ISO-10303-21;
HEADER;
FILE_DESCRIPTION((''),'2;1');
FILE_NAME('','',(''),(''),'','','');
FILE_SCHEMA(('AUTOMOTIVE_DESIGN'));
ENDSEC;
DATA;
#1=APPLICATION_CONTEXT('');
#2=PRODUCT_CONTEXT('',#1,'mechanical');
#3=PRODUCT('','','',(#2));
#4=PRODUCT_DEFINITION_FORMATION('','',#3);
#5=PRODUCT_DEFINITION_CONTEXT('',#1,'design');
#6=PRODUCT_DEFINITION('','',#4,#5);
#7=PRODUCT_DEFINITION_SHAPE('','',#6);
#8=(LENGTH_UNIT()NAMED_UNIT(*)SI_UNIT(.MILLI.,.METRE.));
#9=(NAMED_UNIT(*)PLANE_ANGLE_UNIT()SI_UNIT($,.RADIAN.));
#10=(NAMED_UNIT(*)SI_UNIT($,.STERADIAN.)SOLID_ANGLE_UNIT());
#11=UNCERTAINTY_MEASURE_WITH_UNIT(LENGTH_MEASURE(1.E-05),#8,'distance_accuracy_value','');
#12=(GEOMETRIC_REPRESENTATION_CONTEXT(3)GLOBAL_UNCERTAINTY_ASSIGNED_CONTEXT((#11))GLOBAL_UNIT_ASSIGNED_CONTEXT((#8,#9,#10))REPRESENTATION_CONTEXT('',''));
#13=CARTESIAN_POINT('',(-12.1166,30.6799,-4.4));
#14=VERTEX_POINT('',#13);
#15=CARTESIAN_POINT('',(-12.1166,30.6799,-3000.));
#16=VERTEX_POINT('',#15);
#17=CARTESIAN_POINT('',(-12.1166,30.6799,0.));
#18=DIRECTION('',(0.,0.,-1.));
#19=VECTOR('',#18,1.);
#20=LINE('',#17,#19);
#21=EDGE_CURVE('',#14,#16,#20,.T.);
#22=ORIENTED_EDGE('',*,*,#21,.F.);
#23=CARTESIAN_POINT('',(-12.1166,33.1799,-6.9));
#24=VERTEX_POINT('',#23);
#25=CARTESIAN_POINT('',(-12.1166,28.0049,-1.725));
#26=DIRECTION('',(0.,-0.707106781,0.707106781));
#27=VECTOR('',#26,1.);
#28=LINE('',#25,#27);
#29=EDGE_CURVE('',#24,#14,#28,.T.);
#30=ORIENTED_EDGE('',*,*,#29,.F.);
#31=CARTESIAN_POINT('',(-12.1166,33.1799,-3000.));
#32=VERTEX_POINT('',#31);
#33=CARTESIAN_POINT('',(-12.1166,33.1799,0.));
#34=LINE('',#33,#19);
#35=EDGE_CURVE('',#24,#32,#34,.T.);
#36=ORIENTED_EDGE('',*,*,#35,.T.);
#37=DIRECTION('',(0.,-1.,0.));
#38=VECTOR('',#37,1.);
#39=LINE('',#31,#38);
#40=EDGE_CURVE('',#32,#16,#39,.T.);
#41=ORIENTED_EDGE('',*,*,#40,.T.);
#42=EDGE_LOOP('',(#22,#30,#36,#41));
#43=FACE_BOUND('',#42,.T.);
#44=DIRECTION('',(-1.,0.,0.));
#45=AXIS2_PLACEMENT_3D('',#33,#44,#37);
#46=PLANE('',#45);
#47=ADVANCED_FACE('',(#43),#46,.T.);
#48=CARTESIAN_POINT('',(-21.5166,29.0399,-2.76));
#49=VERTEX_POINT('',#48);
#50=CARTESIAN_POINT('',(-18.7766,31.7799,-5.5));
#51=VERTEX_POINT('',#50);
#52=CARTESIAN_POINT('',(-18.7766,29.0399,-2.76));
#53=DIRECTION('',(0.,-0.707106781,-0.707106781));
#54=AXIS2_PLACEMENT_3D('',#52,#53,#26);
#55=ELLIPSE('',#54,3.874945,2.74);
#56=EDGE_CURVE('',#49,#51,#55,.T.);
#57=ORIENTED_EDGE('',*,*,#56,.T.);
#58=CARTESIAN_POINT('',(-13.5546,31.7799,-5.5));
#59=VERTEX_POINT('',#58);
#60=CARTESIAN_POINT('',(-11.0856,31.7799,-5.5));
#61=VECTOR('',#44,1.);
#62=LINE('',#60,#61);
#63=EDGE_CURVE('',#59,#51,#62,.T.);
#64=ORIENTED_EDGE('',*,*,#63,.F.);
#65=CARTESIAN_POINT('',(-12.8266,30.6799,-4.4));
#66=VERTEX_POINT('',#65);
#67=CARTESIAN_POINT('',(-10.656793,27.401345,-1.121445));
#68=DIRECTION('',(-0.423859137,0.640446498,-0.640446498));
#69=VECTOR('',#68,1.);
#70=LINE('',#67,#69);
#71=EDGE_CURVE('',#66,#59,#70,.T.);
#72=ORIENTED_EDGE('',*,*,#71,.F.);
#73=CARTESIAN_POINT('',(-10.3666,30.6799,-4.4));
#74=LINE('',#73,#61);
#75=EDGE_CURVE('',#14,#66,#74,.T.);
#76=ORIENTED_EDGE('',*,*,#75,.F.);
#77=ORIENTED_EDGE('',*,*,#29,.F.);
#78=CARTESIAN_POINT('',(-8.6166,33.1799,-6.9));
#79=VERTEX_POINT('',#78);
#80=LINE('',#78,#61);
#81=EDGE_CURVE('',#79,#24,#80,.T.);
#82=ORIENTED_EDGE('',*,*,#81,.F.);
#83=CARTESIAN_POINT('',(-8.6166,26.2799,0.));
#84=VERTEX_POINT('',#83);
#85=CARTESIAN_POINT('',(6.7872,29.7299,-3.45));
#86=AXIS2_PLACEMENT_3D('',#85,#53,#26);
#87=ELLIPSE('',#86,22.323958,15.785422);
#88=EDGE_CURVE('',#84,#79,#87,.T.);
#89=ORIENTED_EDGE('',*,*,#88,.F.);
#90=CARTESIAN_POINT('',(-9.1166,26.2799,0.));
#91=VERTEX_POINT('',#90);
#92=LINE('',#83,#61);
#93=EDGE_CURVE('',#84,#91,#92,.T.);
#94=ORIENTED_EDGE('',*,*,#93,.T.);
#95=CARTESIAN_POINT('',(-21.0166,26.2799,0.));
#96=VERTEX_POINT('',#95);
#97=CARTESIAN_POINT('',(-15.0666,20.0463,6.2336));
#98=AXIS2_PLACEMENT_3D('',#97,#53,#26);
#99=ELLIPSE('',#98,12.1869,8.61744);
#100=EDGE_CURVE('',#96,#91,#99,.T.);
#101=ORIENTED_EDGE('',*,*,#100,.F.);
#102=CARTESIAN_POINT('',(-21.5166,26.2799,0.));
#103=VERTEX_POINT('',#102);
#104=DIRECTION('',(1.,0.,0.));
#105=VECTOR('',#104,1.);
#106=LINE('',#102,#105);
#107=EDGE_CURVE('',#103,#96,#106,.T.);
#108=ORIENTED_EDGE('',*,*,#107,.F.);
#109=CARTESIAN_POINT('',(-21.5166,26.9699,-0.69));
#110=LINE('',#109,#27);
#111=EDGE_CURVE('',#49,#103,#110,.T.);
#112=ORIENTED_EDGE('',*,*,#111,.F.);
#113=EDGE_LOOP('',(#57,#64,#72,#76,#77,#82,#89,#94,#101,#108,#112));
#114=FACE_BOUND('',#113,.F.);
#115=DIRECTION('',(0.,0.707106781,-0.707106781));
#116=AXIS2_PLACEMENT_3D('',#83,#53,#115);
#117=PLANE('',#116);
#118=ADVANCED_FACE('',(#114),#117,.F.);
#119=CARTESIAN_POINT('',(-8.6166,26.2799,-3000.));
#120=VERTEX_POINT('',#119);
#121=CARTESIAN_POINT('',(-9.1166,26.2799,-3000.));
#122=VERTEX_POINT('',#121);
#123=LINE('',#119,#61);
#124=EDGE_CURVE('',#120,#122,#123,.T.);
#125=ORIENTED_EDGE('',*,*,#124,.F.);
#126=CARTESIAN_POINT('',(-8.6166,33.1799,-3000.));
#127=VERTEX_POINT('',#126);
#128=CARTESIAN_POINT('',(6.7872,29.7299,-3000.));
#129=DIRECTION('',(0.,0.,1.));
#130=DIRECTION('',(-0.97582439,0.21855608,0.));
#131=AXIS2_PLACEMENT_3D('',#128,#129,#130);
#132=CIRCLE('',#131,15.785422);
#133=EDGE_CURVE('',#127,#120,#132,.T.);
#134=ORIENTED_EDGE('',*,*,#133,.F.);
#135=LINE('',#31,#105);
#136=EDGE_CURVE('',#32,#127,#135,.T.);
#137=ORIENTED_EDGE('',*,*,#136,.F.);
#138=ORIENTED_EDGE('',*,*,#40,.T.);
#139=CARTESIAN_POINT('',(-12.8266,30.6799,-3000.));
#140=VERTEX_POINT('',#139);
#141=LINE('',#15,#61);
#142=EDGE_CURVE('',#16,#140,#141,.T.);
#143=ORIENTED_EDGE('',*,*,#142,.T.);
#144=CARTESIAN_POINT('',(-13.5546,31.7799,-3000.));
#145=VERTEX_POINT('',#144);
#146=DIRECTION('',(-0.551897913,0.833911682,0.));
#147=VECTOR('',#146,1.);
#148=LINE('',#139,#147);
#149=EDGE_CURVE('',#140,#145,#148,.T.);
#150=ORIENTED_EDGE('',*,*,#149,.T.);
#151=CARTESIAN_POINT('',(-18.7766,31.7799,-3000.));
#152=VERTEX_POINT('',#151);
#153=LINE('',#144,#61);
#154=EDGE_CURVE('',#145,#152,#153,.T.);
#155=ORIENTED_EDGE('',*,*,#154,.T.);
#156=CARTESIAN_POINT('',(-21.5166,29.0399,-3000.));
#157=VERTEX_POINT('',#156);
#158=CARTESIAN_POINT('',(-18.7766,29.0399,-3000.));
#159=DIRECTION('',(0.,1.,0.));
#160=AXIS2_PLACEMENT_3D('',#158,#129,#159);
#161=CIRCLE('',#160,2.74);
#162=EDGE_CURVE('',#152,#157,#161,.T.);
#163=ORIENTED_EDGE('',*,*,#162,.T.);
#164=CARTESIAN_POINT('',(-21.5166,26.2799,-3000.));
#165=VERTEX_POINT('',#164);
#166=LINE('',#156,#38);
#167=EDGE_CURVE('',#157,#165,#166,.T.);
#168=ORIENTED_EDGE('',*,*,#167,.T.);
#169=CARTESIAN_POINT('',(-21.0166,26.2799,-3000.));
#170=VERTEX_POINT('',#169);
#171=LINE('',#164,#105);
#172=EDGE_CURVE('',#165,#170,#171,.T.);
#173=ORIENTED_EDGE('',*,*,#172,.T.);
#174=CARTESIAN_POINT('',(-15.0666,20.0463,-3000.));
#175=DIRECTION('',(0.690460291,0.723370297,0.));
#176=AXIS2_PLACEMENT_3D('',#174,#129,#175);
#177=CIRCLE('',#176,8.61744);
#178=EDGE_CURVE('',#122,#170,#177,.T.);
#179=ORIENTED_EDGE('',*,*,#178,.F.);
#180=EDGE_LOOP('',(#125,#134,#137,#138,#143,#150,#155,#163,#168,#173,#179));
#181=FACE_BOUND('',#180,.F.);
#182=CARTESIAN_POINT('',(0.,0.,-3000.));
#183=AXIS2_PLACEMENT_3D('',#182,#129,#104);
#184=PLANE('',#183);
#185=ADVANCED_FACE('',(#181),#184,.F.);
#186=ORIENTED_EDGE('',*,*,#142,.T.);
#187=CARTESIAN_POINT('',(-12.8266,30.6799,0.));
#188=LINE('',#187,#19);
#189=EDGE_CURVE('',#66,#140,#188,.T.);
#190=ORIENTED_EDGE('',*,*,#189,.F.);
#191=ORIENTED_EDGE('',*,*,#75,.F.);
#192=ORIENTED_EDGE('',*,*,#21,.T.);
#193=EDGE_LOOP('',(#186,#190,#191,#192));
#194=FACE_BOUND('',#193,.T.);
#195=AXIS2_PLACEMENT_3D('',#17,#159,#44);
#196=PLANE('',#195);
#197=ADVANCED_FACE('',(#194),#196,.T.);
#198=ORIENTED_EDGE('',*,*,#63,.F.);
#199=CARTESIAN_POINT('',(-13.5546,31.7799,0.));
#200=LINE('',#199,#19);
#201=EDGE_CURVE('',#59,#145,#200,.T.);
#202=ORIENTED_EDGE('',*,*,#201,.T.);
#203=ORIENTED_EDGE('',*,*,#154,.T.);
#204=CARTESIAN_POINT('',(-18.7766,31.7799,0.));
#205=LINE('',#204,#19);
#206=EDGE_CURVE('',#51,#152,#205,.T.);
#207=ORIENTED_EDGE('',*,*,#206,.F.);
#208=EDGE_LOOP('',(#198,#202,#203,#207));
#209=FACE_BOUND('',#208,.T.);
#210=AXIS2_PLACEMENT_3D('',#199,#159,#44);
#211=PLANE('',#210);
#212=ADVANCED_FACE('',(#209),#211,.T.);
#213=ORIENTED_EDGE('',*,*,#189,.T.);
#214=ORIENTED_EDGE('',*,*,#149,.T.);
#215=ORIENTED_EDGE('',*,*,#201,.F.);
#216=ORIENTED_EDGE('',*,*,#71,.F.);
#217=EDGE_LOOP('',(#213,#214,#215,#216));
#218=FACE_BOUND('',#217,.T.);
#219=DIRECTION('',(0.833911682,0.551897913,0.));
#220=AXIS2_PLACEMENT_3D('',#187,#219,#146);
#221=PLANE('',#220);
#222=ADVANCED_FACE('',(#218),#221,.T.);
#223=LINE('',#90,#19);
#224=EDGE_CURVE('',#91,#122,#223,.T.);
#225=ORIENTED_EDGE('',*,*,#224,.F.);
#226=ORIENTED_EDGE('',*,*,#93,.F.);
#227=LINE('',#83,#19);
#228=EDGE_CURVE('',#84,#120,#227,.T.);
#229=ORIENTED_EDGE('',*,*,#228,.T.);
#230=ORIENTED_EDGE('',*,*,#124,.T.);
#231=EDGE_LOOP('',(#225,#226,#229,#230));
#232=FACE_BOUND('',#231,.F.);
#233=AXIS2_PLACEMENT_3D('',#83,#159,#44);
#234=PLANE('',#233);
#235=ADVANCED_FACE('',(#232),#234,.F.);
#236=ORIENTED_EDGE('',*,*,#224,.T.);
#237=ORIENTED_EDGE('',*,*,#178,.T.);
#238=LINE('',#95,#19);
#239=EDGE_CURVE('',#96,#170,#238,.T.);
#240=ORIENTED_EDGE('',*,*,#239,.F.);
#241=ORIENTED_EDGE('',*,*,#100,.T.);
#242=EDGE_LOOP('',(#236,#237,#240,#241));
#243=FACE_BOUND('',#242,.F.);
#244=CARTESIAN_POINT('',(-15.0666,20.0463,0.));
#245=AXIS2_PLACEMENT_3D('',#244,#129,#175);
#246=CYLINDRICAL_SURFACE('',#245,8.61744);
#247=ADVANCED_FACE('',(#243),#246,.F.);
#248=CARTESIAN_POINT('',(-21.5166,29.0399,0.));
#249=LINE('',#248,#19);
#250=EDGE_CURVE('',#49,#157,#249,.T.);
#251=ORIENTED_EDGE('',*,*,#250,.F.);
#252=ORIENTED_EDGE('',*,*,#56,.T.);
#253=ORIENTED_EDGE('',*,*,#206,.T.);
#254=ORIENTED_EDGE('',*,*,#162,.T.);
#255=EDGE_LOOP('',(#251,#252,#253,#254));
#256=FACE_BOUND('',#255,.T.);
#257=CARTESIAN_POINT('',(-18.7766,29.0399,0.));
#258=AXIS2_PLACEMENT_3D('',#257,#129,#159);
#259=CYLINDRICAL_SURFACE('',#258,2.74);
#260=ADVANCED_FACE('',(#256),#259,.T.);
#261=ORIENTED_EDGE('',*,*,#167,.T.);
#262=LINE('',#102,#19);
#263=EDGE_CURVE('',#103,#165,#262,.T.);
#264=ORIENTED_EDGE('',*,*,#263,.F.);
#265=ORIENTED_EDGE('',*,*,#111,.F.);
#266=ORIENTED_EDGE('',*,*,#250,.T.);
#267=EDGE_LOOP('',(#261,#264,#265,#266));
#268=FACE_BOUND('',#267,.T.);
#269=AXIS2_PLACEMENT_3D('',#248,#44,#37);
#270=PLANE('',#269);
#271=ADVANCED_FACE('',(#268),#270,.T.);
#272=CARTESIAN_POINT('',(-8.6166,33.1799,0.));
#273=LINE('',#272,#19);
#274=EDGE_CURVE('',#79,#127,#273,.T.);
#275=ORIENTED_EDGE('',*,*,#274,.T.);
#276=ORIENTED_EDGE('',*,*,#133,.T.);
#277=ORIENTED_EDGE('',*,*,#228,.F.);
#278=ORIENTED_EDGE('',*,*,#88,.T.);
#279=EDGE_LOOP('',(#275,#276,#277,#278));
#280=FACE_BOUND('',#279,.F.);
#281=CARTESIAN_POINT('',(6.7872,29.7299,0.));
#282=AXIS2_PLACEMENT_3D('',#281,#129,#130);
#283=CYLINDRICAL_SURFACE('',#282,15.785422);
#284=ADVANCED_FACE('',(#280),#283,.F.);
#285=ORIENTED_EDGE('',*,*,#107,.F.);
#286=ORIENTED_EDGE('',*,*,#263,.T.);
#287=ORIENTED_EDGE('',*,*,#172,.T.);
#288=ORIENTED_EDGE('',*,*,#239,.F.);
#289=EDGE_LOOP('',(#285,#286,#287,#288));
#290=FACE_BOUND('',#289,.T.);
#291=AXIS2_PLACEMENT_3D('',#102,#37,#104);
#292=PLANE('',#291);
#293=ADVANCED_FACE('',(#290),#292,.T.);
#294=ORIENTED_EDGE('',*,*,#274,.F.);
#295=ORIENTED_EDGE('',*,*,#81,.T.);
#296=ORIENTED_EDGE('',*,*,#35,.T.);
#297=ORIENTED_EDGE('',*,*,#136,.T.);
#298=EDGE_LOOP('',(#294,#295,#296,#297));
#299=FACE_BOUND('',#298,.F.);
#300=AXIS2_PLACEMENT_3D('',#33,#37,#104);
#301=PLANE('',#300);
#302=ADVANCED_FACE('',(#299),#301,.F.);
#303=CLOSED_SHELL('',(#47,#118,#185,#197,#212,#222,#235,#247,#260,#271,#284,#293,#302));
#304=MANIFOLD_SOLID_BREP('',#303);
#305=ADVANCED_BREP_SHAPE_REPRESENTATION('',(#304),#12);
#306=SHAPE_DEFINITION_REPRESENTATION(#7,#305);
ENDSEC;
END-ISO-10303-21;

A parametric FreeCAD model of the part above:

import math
import FreeCAD as App
import Part
import Sketcher

V = App.Vector
Q = App.Units.Quantity

doc = App.newDocument("Part")
body = doc.addObject("PartDesign::Body", "Body")

# Sketch on XY plane
sketch1 = body.newObject("Sketcher::SketchObject", "Sketch")
sketch1.AttachmentSupport = (doc.getObject("XY_Plane"), [""])
sketch1.MapMode = "FlatFace"
sketch1.addGeometry([
    Part.LineSegment(V(-12.8, 30.7, 0), V(-13.6, 31.8, 0)),  # 0
    Part.LineSegment(V(-13.6, 31.8, 0), V(-18.8, 31.8, 0)),  # 1
    Part.ArcOfCircle(Part.Circle(V(-18.8, 29, 0), V(0, 0, 1), 2.7), math.radians(90), math.radians(180)),  # 2
    Part.LineSegment(V(-21.5, 29, 0), V(-21.5, 26.3, 0)),  # 3
    Part.LineSegment(V(-21.5, 26.3, 0), V(-21, 26.3, 0)),  # 4
    Part.ArcOfCircle(Part.Circle(V(-15.1, 20, 0), V(0, 0, 1), 8.6), math.radians(46), math.radians(134)),  # 5
    Part.LineSegment(V(-9.1, 26.3, 0), V(-8.6, 26.3, 0)),  # 6
    Part.ArcOfCircle(Part.Circle(V(6.8, 29.7, 0), V(0, 0, 1), 15.8), math.radians(167), math.radians(193)),  # 7
    Part.LineSegment(V(-8.6, 33.2, 0), V(-12.1, 33.2, 0)),  # 8
    Part.LineSegment(V(-12.1, 33.2, 0), V(-12.1, 30.7, 0)),  # 9
    Part.LineSegment(V(-12.1, 30.7, 0), V(-12.8, 30.7, 0)),  # 10
], False)
sketch1.addConstraint([
    Sketcher.Constraint("Coincident", 0, 2, 1, 1),
    Sketcher.Constraint("Tangent", 1, 2, 2, 1),
    Sketcher.Constraint("Tangent", 2, 2, 3, 1),
    Sketcher.Constraint("Coincident", 3, 2, 4, 1),
    Sketcher.Constraint("Coincident", 4, 2, 5, 2),
    Sketcher.Constraint("Coincident", 5, 1, 6, 1),
    Sketcher.Constraint("Coincident", 6, 2, 7, 2),
    Sketcher.Constraint("Coincident", 7, 1, 8, 1),
    Sketcher.Constraint("Coincident", 8, 2, 9, 1),
    Sketcher.Constraint("Coincident", 9, 2, 10, 1),
    Sketcher.Constraint("Coincident", 10, 2, 0, 1),
    Sketcher.Constraint("Horizontal", 1),
    Sketcher.Constraint("Vertical", 3),
    Sketcher.Constraint("Horizontal", 4),
    Sketcher.Constraint("Horizontal", 6),
    Sketcher.Constraint("Horizontal", 8),
    Sketcher.Constraint("Vertical", 9),
    Sketcher.Constraint("Horizontal", 10),
    Sketcher.Constraint("Horizontal", 4, 2, 5, 1),
    Sketcher.Constraint("Vertical", 6, 2, 7, 1),
    Sketcher.Constraint("Equal", 4, 6),
    Sketcher.Constraint("Radius", 2, Q("2.74 mm")),
    Sketcher.Constraint("DistanceX", 4, 1, 4, 2, Q("0.5 mm")),
    Sketcher.Constraint("DistanceX", 8, 2, 8, 1, Q("3.5 mm")),
    Sketcher.Constraint("DistanceY", 9, 2, 9, 1, Q("2.5 mm")),
    Sketcher.Constraint("DistanceX", 10, 2, 10, 1, Q("0.71 mm")),
    Sketcher.Constraint("DistanceY", 3, 2, 3, 1, Q("2.76 mm")),
    Sketcher.Constraint("DistanceX", 1, 2, 1, 1, Q("5.222 mm")),
    Sketcher.Constraint("Radius", 5, Q("8.6174 mm")),
    Sketcher.Constraint("Radius", 7, Q("15.7854 mm")),
    Sketcher.Constraint("DistanceX", 4, 2, 5, 1, Q("11.9 mm")),
    Sketcher.Constraint("DistanceY", 0, 2, 7, 1, Q("1.4 mm")),
    Sketcher.Constraint("DistanceY", -1, 1, 2, 3, Q("29.04 mm")),
    Sketcher.Constraint("DistanceX", 2, 3, -1, 1, Q("18.7766 mm")),
])
pad1 = body.newObject("PartDesign::Pad", "Pad")
pad1.Profile = sketch1
pad1.Length = 3000
pad1.Reversed = True

# Sketch on YZ plane
sketch2 = body.newObject("Sketcher::SketchObject", "Sketch001")
sketch2.AttachmentSupport = (doc.getObject("YZ_Plane"), [""])
sketch2.MapMode = "FlatFace"
sketch2.AttachmentOffset = App.Placement(V(0, 0, -8.6166), App.Rotation())
sketch2.addGeometry([
    Part.LineSegment(V(26, 0, 0), V(33, 0, 0)),
    Part.LineSegment(V(33, 0, 0), V(33, -7, 0)),
    Part.LineSegment(V(33, -7, 0), V(26, 0, 0)),
], False)
sketch2.addConstraint([
    Sketcher.Constraint("Coincident", 0, 2, 1, 1),
    Sketcher.Constraint("Coincident", 1, 2, 2, 1),
    Sketcher.Constraint("Coincident", 2, 2, 0, 1),
    Sketcher.Constraint("Horizontal", 0),
    Sketcher.Constraint("Vertical", 1),
    Sketcher.Constraint("PointOnObject", 0, 2, -1),
    Sketcher.Constraint("Equal", 0, 1),
    Sketcher.Constraint("DistanceX", 0, 1, 0, 2, Q("6.9 mm")),
    Sketcher.Constraint("DistanceX", -1, 1, 0, 2, Q("33.18 mm")),
])
pocket1 = body.newObject("PartDesign::Pocket", "Pocket")
pocket1.Profile = sketch2
pocket1.Type = "ThroughAll"

doc.recompute()
